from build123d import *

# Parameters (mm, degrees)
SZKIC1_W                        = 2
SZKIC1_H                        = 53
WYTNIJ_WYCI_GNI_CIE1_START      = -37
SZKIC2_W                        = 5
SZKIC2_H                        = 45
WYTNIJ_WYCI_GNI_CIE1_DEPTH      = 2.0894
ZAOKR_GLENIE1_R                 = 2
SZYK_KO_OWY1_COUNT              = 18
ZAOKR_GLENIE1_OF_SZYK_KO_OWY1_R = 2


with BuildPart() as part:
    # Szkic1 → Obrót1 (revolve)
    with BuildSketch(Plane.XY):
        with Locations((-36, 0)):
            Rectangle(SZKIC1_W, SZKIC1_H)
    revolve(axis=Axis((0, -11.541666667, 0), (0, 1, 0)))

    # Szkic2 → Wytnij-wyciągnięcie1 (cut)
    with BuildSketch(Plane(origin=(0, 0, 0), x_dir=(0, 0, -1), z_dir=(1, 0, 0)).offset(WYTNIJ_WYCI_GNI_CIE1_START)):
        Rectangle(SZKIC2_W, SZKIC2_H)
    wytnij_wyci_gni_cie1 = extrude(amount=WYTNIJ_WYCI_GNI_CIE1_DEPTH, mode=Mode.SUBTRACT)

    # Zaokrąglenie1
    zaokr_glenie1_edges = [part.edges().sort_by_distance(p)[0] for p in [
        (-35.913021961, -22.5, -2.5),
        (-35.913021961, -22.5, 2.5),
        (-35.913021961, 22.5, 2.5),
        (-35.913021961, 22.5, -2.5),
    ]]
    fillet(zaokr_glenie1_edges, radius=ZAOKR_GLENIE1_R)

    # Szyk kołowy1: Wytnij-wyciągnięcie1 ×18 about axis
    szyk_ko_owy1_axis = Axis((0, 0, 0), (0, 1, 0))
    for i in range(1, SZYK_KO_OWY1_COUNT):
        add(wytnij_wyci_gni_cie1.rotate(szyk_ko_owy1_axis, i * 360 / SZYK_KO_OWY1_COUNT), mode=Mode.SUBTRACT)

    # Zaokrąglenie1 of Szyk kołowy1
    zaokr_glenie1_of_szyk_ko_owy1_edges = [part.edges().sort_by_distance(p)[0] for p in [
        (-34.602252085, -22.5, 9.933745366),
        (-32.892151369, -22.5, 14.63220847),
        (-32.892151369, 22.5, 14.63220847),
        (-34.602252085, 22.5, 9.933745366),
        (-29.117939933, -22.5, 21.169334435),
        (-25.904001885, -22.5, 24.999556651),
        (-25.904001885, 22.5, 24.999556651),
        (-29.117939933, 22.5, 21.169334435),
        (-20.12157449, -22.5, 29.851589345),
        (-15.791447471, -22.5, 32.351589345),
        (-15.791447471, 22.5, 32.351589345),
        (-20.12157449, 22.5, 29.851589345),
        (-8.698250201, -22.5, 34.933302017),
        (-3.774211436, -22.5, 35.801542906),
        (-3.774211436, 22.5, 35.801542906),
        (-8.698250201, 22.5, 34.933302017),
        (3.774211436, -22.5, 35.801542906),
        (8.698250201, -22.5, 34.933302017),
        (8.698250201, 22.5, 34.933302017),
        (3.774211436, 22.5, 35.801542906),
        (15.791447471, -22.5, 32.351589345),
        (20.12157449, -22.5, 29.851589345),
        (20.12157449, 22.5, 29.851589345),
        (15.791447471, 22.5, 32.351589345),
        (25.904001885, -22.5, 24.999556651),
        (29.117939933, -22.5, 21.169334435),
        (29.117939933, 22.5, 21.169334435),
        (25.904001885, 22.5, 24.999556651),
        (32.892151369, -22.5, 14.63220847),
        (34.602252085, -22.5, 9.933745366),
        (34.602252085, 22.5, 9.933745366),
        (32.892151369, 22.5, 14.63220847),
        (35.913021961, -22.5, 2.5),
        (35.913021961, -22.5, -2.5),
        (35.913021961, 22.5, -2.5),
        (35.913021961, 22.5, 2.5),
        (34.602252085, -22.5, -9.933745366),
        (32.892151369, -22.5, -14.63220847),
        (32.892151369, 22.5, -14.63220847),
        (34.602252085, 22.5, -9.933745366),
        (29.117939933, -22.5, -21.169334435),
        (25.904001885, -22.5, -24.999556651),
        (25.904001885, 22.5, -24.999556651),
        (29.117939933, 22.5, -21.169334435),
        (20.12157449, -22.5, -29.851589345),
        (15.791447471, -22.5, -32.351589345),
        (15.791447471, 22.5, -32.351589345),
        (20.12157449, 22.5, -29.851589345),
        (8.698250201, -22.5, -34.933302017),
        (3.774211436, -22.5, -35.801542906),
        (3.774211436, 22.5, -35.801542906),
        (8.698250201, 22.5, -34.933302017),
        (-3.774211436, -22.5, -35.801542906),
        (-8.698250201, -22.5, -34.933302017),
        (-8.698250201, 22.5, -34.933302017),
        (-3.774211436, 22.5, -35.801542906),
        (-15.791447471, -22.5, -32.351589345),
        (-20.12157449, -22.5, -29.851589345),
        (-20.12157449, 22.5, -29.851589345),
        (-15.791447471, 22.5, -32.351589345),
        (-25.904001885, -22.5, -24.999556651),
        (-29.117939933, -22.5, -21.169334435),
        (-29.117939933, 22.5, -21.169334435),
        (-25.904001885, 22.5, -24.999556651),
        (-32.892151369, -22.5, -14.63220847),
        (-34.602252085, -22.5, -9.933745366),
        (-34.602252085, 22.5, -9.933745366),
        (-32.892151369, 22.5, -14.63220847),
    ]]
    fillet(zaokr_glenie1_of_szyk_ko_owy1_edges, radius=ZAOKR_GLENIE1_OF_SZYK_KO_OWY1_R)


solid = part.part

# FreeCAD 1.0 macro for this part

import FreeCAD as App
import Part
import Sketcher
from FreeCAD import Vector


def edges_at(feature, points):
    """Names of the edges that pass closest to the given points."""
    edges = feature.Shape.Edges
    near = lambda p: min(range(len(edges)), key=lambda i: edges[i].distToShape(Part.Vertex(*p))[0])
    return sorted({f"Edge{near(p) + 1}" for p in points})

doc = App.newDocument("Part")
body = doc.addObject("PartDesign::Body", "Body")

# Sketch on XY plane
sketch1 = doc.addObject("Sketcher::SketchObject", "Sketch")
body.addObject(sketch1)
sketch1.AttachmentSupport = (doc.XY_Plane, [""])
sketch1.MapMode = "FlatFace"
sketch1.addGeometry(Part.LineSegment(Vector(-37, 26.5, 0), Vector(-37, -26.5, 0)), False)
sketch1.addGeometry(Part.LineSegment(Vector(-37, -26.5, 0), Vector(-35, -26.5, 0)), False)
sketch1.addGeometry(Part.LineSegment(Vector(-35, -26.5, 0), Vector(-35, 26.5, 0)), False)
sketch1.addGeometry(Part.LineSegment(Vector(-35, 26.5, 0), Vector(-37, 26.5, 0)), False)
sketch1.addConstraint(Sketcher.Constraint("Coincident", 0, 2, 1, 1))
sketch1.addConstraint(Sketcher.Constraint("Coincident", 1, 2, 2, 1))
sketch1.addConstraint(Sketcher.Constraint("Coincident", 2, 2, 3, 1))
sketch1.addConstraint(Sketcher.Constraint("Coincident", 3, 2, 0, 1))
sketch1.addConstraint(Sketcher.Constraint("Vertical", 0))
sketch1.addConstraint(Sketcher.Constraint("Horizontal", 1))
sketch1.addConstraint(Sketcher.Constraint("Vertical", 2))
sketch1.addConstraint(Sketcher.Constraint("Horizontal", 3))
sketch1.addConstraint(Sketcher.Constraint("DistanceX", 1, 1, 1, 2, 2.0))
sketch1.addConstraint(Sketcher.Constraint("DistanceY", 0, 2, 0, 1, 53.0))
sketch1.addConstraint(Sketcher.Constraint("DistanceX", 0, 2, -1, 1, 37.0))
sketch1.addConstraint(Sketcher.Constraint("DistanceY", 0, 2, -1, 1, 26.5))
revolution = doc.addObject("PartDesign::Revolution", "Revolution")
body.addObject(revolution)
revolution.Profile = sketch1
revolution.ReferenceAxis = (sketch1, ["V_Axis"])
revolution.Angle = 360

# Sketch on YZ plane
sketch2 = doc.addObject("Sketcher::SketchObject", "Sketch001")
body.addObject(sketch2)
sketch2.AttachmentSupport = (doc.YZ_Plane, [""])
sketch2.MapMode = "FlatFace"
sketch2.AttachmentOffset = App.Placement(Vector(0, 0, -37), App.Rotation())
sketch2.addGeometry(Part.LineSegment(Vector(22, 2, 0), Vector(-22, 2, 0)), False)
sketch2.addGeometry(Part.LineSegment(Vector(-22, 2, 0), Vector(-22, -2, 0)), False)
sketch2.addGeometry(Part.LineSegment(Vector(-22, -2, 0), Vector(22, -2, 0)), False)
sketch2.addGeometry(Part.LineSegment(Vector(22, -2, 0), Vector(22, 2, 0)), False)
sketch2.addConstraint(Sketcher.Constraint("Coincident", 0, 2, 1, 1))
sketch2.addConstraint(Sketcher.Constraint("Coincident", 1, 2, 2, 1))
sketch2.addConstraint(Sketcher.Constraint("Coincident", 2, 2, 3, 1))
sketch2.addConstraint(Sketcher.Constraint("Coincident", 3, 2, 0, 1))
sketch2.addConstraint(Sketcher.Constraint("Horizontal", 0))
sketch2.addConstraint(Sketcher.Constraint("Vertical", 1))
sketch2.addConstraint(Sketcher.Constraint("Horizontal", 2))
sketch2.addConstraint(Sketcher.Constraint("Vertical", 3))
sketch2.addConstraint(Sketcher.Constraint("Symmetric", 0, 2, 2, 2, -1, 1))
sketch2.addConstraint(Sketcher.Constraint("DistanceX", 0, 2, 0, 1, 45.0))
sketch2.addConstraint(Sketcher.Constraint("DistanceY", 1, 2, 1, 1, 5.0))
pocket1 = doc.addObject("PartDesign::Pocket", "Pocket")
body.addObject(pocket1)
pocket1.Profile = sketch2
pocket1.Length = 2.0894
pocket1.Reversed = True
doc.recompute()

fillet = doc.addObject("PartDesign::Fillet", "Fillet")
body.addObject(fillet)
fillet.Base = (pocket1, edges_at(pocket1, [
    (-35.913, -22.5, -2.5),
    (-35.913, -22.5, 2.5),
    (-35.913, 22.5, 2.5),
    (-35.913, 22.5, -2.5),
]))
fillet.Radius = 2
doc.recompute()

polarpattern = doc.addObject("PartDesign::PolarPattern", "PolarPattern")
body.addObject(polarpattern)
polarpattern.Originals = [pocket1]
polarpattern.Axis = (doc.Y_Axis, [""])
polarpattern.Angle = 360
polarpattern.Occurrences = 18
body.Tip = polarpattern
doc.recompute()

fillet2 = doc.addObject("PartDesign::Fillet", "Fillet001")
body.addObject(fillet2)
fillet2.Base = (polarpattern, edges_at(polarpattern, [
    (-34.602, -22.5, 9.934),
    (-32.892, -22.5, 14.632),
    (-32.892, 22.5, 14.632),
    (-34.602, 22.5, 9.934),
    (-29.118, -22.5, 21.169),
    (-25.904, -22.5, 25),
    (-25.904, 22.5, 25),
    (-29.118, 22.5, 21.169),
    (-20.122, -22.5, 29.852),
    (-15.791, -22.5, 32.352),
    (-15.791, 22.5, 32.352),
    (-20.122, 22.5, 29.852),
    (-8.698, -22.5, 34.933),
    (-3.774, -22.5, 35.802),
    (-3.774, 22.5, 35.802),
    (-8.698, 22.5, 34.933),
    (3.774, -22.5, 35.802),
    (8.698, -22.5, 34.933),
    (8.698, 22.5, 34.933),
    (3.774, 22.5, 35.802),
    (15.791, -22.5, 32.352),
    (20.122, -22.5, 29.852),
    (20.122, 22.5, 29.852),
    (15.791, 22.5, 32.352),
    (25.904, -22.5, 25),
    (29.118, -22.5, 21.169),
    (29.118, 22.5, 21.169),
    (25.904, 22.5, 25),
    (32.892, -22.5, 14.632),
    (34.602, -22.5, 9.934),
    (34.602, 22.5, 9.934),
    (32.892, 22.5, 14.632),
    (35.913, -22.5, 2.5),
    (35.913, -22.5, -2.5),
    (35.913, 22.5, -2.5),
    (35.913, 22.5, 2.5),
    (34.602, -22.5, -9.934),
    (32.892, -22.5, -14.632),
    (32.892, 22.5, -14.632),
    (34.602, 22.5, -9.934),
    (29.118, -22.5, -21.169),
    (25.904, -22.5, -25),
    (25.904, 22.5, -25),
    (29.118, 22.5, -21.169),
    (20.122, -22.5, -29.852),
    (15.791, -22.5, -32.352),
    (15.791, 22.5, -32.352),
    (20.122, 22.5, -29.852),
    (8.698, -22.5, -34.933),
    (3.774, -22.5, -35.802),
    (3.774, 22.5, -35.802),
    (8.698, 22.5, -34.933),
    (-3.774, -22.5, -35.802),
    (-8.698, -22.5, -34.933),
    (-8.698, 22.5, -34.933),
    (-3.774, 22.5, -35.802),
    (-15.791, -22.5, -32.352),
    (-20.122, -22.5, -29.852),
    (-20.122, 22.5, -29.852),
    (-15.791, 22.5, -32.352),
    (-25.904, -22.5, -25),
    (-29.118, -22.5, -21.169),
    (-29.118, 22.5, -21.169),
    (-25.904, 22.5, -25),
    (-32.892, -22.5, -14.632),
    (-34.602, -22.5, -9.934),
    (-34.602, 22.5, -9.934),
    (-32.892, 22.5, -14.632),
]))
fillet2.Radius = 2

doc.recompute()
